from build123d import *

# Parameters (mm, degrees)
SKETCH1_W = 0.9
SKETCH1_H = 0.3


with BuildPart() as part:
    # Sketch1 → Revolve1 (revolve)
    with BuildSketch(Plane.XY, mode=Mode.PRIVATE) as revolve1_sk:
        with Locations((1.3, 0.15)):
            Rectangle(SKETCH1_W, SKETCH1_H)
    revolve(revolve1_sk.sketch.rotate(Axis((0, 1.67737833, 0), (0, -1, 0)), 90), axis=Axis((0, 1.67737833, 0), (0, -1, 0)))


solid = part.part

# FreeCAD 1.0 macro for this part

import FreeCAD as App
import Part
import Sketcher
from FreeCAD import Vector
Q = App.Units.Quantity


def add_polygon(sketch, points):
    """Adds a closed chain of lines whose ends are joined by coincident constraints."""
    first, n = sketch.GeometryCount, len(points)
    for a, b in zip(points, points[1:] + points[:1]):
        sketch.addGeometry(Part.LineSegment(App.Vector(*a, 0), App.Vector(*b, 0)), False)
    for i in range(n):
        sketch.addConstraint(Sketcher.Constraint("Coincident", first + i, 2, first + (i + 1) % n, 1))

doc = App.newDocument("Part")
body = doc.addObject("PartDesign::Body", "Body")

# Sketch on XY plane
sketch1 = body.newObject("Sketcher::SketchObject", "Sketch")
sketch1.AttachmentSupport = (doc.getObject("XY_Plane"), [""])
sketch1.MapMode = "FlatFace"
add_polygon(sketch1, [(0.85, 0.3), (0.85, 0), (1.75, 0), (1.75, 0.3)])  # lines 0-3
sketch1.addConstraint([
    Sketcher.Constraint("Vertical", 0),
    Sketcher.Constraint("Horizontal", 1),
    Sketcher.Constraint("Vertical", 2),
    Sketcher.Constraint("Horizontal", 3),
    Sketcher.Constraint("PointOnObject", 0, 2, -1),
    Sketcher.Constraint("DistanceX", 1, 1, 1, 2, Q("0.9 mm")),
    Sketcher.Constraint("DistanceY", 0, 2, 0, 1, Q("0.3 mm")),
    Sketcher.Constraint("DistanceX", -1, 1, 0, 2, Q("0.85 mm")),
])
revolution = body.newObject("PartDesign::Revolution", "Revolution")
revolution.Profile = sketch1
revolution.ReferenceAxis = (sketch1, ["V_Axis"])
revolution.Angle = 360

doc.recompute()
